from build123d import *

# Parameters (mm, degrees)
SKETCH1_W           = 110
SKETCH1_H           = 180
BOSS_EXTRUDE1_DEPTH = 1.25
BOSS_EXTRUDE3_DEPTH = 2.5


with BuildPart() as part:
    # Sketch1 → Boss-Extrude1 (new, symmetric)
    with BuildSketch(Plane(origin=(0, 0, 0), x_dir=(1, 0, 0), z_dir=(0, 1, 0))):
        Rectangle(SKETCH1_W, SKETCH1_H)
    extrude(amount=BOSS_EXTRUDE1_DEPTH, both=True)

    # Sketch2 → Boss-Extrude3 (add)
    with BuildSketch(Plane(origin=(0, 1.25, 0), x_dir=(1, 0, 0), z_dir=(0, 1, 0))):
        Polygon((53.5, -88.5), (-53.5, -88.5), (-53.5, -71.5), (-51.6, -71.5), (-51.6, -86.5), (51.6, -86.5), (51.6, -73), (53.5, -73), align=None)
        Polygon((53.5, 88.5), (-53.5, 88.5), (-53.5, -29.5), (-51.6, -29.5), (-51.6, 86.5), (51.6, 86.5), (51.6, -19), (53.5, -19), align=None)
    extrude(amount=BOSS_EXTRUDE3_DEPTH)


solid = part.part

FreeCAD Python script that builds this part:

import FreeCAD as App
import Part
import Sketcher

V = App.Vector
Q = App.Units.Quantity


def add_polygon(sketch, points):
    """Adds a closed chain of lines whose ends are joined by coincident constraints."""
    first, n = sketch.GeometryCount, len(points)
    for a, b in zip(points, points[1:] + points[:1]):
        sketch.addGeometry(Part.LineSegment(App.Vector(*a, 0), App.Vector(*b, 0)), False)
    for i in range(n):
        sketch.addConstraint(Sketcher.Constraint("Coincident", first + i, 2, first + (i + 1) % n, 1))

doc = App.newDocument("Part")
params = doc.addObject("Spreadsheet::Sheet", "Params")
for row, (alias, value) in enumerate([
    ("sketch1_width", "110 mm"),
    ("sketch1_height", "180 mm"),
    ("pad1_length", "2.5 mm"),
    ("sketch2_width", "107 mm"),
    ("sketch2_height", "15 mm"),
    ("sketch2_height2", "17 mm"),
    ("sketch2_height3", "118 mm"),
    ("sketch2_width2", "1.9 mm"),
    ("pad2_length", "2.5 mm"),
], start=1):
    params.set(f"A{row}", alias)
    params.set(f"B{row}", "=" + value)
    params.setAlias(f"B{row}", alias)

body = doc.addObject("PartDesign::Body", "Body")

# Sketch on XZ plane
sketch1 = doc.addObject("Sketcher::SketchObject", "Sketch")
body.addObject(sketch1)
sketch1.AttachmentSupport = (doc.XZ_Plane, [""])
sketch1.MapMode = "FlatFace"
add_polygon(sketch1, [(-55, -90), (-55, 90), (55, 90), (55, -90)])  # lines 0-3
sketch1.addConstraint([
    Sketcher.Constraint("Vertical", 0),
    Sketcher.Constraint("Horizontal", 1),
    Sketcher.Constraint("Vertical", 2),
    Sketcher.Constraint("Horizontal", 3),
    Sketcher.Constraint("Symmetric", 0, 2, 2, 2, -1, 1),
    Sketcher.Constraint("DistanceX", 1, 1, 1, 2, Q("110 mm")),
    Sketcher.Constraint("DistanceY", 0, 1, 0, 2, Q("180 mm")),
])
sketch1.setExpression("Constraints[9]", "Params.sketch1_width")
sketch1.setExpression("Constraints[10]", "Params.sketch1_height")
pad1 = doc.addObject("PartDesign::Pad", "Pad")
body.addObject(pad1)
pad1.Profile = sketch1
pad1.setExpression("Length", "Params.pad1_length")
pad1.Midplane = True

# Sketch on XZ plane
sketch2 = doc.addObject("Sketcher::SketchObject", "Sketch001")
body.addObject(sketch2)
sketch2.AttachmentSupport = (doc.XZ_Plane, [""])
sketch2.MapMode = "FlatFace"
sketch2.AttachmentOffset = App.Placement(V(0, 0, -1.25), App.Rotation())
add_polygon(sketch2, [(-53.5, 88.5), (53.5, 88.5), (53.5, 73), (51.6, 73), (51.6, 86.5), (-51.6, 86.5), (-51.6, 71.5), (-53.5, 71.5)])  # lines 0-7
add_polygon(sketch2, [(53.5, -88.5), (-53.5, -88.5), (-53.5, 29.5), (-51.6, 29.5), (-51.6, -86.5), (51.6, -86.5), (51.6, 19), (53.5, 19)])  # lines 8-15
sketch2.addConstraint([
    Sketcher.Constraint("Horizontal", 0),
    Sketcher.Constraint("Vertical", 1),
    Sketcher.Constraint("Horizontal", 2),
    Sketcher.Constraint("Vertical", 3),
    Sketcher.Constraint("Horizontal", 4),
    Sketcher.Constraint("Vertical", 5),
    Sketcher.Constraint("Horizontal", 6),
    Sketcher.Constraint("Vertical", 7),
    Sketcher.Constraint("Horizontal", 8),
    Sketcher.Constraint("Vertical", 9),
    Sketcher.Constraint("Horizontal", 10),
    Sketcher.Constraint("Vertical", 11),
    Sketcher.Constraint("Horizontal", 12),
    Sketcher.Constraint("Vertical", 13),
    Sketcher.Constraint("Horizontal", 14),
    Sketcher.Constraint("Vertical", 15),
    Sketcher.Constraint("Symmetric", 0, 2, 8, 2, -1, 1),
    Sketcher.Constraint("Symmetric", 3, 2, 11, 2, -1, 1),
    Sketcher.Constraint("Vertical", 7, 2, 8, 2),
    Sketcher.Constraint("Vertical", 5, 2, 10, 2),
    Sketcher.Constraint("Vertical", 3, 2, 12, 2),
    Sketcher.Constraint("Vertical", 1, 2, 14, 2),
    Sketcher.Constraint("DistanceX", 0, 1, 0, 2, Q("107 mm")),
    Sketcher.Constraint("DistanceY", 5, 2, 5, 1, Q("15 mm")),
    Sketcher.Constraint("DistanceY", 7, 1, 7, 2, Q("17 mm")),
    Sketcher.Constraint("DistanceY", 9, 1, 9, 2, Q("118 mm")),
    Sketcher.Constraint("DistanceX", 2, 2, 2, 1, Q("1.9 mm")),
    Sketcher.Constraint("DistanceY", 1, 2, 1, 1, Q("15.5 mm")),
    Sketcher.Constraint("DistanceY", 13, 1, 13, 2, Q("105.5 mm")),
    Sketcher.Constraint("DistanceY", -1, 1, 1, 2, Q("73 mm")),
])
sketch2.setExpression("Constraints[38]", "Params.sketch2_width")
sketch2.setExpression("Constraints[39]", "Params.sketch2_height")
sketch2.setExpression("Constraints[40]", "Params.sketch2_height2")
sketch2.setExpression("Constraints[41]", "Params.sketch2_height3")
sketch2.setExpression("Constraints[42]", "Params.sketch2_width2")
pad2 = doc.addObject("PartDesign::Pad", "Pad001")
body.addObject(pad2)
pad2.Profile = sketch2
pad2.setExpression("Length", "Params.pad2_length")
pad2.Reversed = True

doc.recompute()
